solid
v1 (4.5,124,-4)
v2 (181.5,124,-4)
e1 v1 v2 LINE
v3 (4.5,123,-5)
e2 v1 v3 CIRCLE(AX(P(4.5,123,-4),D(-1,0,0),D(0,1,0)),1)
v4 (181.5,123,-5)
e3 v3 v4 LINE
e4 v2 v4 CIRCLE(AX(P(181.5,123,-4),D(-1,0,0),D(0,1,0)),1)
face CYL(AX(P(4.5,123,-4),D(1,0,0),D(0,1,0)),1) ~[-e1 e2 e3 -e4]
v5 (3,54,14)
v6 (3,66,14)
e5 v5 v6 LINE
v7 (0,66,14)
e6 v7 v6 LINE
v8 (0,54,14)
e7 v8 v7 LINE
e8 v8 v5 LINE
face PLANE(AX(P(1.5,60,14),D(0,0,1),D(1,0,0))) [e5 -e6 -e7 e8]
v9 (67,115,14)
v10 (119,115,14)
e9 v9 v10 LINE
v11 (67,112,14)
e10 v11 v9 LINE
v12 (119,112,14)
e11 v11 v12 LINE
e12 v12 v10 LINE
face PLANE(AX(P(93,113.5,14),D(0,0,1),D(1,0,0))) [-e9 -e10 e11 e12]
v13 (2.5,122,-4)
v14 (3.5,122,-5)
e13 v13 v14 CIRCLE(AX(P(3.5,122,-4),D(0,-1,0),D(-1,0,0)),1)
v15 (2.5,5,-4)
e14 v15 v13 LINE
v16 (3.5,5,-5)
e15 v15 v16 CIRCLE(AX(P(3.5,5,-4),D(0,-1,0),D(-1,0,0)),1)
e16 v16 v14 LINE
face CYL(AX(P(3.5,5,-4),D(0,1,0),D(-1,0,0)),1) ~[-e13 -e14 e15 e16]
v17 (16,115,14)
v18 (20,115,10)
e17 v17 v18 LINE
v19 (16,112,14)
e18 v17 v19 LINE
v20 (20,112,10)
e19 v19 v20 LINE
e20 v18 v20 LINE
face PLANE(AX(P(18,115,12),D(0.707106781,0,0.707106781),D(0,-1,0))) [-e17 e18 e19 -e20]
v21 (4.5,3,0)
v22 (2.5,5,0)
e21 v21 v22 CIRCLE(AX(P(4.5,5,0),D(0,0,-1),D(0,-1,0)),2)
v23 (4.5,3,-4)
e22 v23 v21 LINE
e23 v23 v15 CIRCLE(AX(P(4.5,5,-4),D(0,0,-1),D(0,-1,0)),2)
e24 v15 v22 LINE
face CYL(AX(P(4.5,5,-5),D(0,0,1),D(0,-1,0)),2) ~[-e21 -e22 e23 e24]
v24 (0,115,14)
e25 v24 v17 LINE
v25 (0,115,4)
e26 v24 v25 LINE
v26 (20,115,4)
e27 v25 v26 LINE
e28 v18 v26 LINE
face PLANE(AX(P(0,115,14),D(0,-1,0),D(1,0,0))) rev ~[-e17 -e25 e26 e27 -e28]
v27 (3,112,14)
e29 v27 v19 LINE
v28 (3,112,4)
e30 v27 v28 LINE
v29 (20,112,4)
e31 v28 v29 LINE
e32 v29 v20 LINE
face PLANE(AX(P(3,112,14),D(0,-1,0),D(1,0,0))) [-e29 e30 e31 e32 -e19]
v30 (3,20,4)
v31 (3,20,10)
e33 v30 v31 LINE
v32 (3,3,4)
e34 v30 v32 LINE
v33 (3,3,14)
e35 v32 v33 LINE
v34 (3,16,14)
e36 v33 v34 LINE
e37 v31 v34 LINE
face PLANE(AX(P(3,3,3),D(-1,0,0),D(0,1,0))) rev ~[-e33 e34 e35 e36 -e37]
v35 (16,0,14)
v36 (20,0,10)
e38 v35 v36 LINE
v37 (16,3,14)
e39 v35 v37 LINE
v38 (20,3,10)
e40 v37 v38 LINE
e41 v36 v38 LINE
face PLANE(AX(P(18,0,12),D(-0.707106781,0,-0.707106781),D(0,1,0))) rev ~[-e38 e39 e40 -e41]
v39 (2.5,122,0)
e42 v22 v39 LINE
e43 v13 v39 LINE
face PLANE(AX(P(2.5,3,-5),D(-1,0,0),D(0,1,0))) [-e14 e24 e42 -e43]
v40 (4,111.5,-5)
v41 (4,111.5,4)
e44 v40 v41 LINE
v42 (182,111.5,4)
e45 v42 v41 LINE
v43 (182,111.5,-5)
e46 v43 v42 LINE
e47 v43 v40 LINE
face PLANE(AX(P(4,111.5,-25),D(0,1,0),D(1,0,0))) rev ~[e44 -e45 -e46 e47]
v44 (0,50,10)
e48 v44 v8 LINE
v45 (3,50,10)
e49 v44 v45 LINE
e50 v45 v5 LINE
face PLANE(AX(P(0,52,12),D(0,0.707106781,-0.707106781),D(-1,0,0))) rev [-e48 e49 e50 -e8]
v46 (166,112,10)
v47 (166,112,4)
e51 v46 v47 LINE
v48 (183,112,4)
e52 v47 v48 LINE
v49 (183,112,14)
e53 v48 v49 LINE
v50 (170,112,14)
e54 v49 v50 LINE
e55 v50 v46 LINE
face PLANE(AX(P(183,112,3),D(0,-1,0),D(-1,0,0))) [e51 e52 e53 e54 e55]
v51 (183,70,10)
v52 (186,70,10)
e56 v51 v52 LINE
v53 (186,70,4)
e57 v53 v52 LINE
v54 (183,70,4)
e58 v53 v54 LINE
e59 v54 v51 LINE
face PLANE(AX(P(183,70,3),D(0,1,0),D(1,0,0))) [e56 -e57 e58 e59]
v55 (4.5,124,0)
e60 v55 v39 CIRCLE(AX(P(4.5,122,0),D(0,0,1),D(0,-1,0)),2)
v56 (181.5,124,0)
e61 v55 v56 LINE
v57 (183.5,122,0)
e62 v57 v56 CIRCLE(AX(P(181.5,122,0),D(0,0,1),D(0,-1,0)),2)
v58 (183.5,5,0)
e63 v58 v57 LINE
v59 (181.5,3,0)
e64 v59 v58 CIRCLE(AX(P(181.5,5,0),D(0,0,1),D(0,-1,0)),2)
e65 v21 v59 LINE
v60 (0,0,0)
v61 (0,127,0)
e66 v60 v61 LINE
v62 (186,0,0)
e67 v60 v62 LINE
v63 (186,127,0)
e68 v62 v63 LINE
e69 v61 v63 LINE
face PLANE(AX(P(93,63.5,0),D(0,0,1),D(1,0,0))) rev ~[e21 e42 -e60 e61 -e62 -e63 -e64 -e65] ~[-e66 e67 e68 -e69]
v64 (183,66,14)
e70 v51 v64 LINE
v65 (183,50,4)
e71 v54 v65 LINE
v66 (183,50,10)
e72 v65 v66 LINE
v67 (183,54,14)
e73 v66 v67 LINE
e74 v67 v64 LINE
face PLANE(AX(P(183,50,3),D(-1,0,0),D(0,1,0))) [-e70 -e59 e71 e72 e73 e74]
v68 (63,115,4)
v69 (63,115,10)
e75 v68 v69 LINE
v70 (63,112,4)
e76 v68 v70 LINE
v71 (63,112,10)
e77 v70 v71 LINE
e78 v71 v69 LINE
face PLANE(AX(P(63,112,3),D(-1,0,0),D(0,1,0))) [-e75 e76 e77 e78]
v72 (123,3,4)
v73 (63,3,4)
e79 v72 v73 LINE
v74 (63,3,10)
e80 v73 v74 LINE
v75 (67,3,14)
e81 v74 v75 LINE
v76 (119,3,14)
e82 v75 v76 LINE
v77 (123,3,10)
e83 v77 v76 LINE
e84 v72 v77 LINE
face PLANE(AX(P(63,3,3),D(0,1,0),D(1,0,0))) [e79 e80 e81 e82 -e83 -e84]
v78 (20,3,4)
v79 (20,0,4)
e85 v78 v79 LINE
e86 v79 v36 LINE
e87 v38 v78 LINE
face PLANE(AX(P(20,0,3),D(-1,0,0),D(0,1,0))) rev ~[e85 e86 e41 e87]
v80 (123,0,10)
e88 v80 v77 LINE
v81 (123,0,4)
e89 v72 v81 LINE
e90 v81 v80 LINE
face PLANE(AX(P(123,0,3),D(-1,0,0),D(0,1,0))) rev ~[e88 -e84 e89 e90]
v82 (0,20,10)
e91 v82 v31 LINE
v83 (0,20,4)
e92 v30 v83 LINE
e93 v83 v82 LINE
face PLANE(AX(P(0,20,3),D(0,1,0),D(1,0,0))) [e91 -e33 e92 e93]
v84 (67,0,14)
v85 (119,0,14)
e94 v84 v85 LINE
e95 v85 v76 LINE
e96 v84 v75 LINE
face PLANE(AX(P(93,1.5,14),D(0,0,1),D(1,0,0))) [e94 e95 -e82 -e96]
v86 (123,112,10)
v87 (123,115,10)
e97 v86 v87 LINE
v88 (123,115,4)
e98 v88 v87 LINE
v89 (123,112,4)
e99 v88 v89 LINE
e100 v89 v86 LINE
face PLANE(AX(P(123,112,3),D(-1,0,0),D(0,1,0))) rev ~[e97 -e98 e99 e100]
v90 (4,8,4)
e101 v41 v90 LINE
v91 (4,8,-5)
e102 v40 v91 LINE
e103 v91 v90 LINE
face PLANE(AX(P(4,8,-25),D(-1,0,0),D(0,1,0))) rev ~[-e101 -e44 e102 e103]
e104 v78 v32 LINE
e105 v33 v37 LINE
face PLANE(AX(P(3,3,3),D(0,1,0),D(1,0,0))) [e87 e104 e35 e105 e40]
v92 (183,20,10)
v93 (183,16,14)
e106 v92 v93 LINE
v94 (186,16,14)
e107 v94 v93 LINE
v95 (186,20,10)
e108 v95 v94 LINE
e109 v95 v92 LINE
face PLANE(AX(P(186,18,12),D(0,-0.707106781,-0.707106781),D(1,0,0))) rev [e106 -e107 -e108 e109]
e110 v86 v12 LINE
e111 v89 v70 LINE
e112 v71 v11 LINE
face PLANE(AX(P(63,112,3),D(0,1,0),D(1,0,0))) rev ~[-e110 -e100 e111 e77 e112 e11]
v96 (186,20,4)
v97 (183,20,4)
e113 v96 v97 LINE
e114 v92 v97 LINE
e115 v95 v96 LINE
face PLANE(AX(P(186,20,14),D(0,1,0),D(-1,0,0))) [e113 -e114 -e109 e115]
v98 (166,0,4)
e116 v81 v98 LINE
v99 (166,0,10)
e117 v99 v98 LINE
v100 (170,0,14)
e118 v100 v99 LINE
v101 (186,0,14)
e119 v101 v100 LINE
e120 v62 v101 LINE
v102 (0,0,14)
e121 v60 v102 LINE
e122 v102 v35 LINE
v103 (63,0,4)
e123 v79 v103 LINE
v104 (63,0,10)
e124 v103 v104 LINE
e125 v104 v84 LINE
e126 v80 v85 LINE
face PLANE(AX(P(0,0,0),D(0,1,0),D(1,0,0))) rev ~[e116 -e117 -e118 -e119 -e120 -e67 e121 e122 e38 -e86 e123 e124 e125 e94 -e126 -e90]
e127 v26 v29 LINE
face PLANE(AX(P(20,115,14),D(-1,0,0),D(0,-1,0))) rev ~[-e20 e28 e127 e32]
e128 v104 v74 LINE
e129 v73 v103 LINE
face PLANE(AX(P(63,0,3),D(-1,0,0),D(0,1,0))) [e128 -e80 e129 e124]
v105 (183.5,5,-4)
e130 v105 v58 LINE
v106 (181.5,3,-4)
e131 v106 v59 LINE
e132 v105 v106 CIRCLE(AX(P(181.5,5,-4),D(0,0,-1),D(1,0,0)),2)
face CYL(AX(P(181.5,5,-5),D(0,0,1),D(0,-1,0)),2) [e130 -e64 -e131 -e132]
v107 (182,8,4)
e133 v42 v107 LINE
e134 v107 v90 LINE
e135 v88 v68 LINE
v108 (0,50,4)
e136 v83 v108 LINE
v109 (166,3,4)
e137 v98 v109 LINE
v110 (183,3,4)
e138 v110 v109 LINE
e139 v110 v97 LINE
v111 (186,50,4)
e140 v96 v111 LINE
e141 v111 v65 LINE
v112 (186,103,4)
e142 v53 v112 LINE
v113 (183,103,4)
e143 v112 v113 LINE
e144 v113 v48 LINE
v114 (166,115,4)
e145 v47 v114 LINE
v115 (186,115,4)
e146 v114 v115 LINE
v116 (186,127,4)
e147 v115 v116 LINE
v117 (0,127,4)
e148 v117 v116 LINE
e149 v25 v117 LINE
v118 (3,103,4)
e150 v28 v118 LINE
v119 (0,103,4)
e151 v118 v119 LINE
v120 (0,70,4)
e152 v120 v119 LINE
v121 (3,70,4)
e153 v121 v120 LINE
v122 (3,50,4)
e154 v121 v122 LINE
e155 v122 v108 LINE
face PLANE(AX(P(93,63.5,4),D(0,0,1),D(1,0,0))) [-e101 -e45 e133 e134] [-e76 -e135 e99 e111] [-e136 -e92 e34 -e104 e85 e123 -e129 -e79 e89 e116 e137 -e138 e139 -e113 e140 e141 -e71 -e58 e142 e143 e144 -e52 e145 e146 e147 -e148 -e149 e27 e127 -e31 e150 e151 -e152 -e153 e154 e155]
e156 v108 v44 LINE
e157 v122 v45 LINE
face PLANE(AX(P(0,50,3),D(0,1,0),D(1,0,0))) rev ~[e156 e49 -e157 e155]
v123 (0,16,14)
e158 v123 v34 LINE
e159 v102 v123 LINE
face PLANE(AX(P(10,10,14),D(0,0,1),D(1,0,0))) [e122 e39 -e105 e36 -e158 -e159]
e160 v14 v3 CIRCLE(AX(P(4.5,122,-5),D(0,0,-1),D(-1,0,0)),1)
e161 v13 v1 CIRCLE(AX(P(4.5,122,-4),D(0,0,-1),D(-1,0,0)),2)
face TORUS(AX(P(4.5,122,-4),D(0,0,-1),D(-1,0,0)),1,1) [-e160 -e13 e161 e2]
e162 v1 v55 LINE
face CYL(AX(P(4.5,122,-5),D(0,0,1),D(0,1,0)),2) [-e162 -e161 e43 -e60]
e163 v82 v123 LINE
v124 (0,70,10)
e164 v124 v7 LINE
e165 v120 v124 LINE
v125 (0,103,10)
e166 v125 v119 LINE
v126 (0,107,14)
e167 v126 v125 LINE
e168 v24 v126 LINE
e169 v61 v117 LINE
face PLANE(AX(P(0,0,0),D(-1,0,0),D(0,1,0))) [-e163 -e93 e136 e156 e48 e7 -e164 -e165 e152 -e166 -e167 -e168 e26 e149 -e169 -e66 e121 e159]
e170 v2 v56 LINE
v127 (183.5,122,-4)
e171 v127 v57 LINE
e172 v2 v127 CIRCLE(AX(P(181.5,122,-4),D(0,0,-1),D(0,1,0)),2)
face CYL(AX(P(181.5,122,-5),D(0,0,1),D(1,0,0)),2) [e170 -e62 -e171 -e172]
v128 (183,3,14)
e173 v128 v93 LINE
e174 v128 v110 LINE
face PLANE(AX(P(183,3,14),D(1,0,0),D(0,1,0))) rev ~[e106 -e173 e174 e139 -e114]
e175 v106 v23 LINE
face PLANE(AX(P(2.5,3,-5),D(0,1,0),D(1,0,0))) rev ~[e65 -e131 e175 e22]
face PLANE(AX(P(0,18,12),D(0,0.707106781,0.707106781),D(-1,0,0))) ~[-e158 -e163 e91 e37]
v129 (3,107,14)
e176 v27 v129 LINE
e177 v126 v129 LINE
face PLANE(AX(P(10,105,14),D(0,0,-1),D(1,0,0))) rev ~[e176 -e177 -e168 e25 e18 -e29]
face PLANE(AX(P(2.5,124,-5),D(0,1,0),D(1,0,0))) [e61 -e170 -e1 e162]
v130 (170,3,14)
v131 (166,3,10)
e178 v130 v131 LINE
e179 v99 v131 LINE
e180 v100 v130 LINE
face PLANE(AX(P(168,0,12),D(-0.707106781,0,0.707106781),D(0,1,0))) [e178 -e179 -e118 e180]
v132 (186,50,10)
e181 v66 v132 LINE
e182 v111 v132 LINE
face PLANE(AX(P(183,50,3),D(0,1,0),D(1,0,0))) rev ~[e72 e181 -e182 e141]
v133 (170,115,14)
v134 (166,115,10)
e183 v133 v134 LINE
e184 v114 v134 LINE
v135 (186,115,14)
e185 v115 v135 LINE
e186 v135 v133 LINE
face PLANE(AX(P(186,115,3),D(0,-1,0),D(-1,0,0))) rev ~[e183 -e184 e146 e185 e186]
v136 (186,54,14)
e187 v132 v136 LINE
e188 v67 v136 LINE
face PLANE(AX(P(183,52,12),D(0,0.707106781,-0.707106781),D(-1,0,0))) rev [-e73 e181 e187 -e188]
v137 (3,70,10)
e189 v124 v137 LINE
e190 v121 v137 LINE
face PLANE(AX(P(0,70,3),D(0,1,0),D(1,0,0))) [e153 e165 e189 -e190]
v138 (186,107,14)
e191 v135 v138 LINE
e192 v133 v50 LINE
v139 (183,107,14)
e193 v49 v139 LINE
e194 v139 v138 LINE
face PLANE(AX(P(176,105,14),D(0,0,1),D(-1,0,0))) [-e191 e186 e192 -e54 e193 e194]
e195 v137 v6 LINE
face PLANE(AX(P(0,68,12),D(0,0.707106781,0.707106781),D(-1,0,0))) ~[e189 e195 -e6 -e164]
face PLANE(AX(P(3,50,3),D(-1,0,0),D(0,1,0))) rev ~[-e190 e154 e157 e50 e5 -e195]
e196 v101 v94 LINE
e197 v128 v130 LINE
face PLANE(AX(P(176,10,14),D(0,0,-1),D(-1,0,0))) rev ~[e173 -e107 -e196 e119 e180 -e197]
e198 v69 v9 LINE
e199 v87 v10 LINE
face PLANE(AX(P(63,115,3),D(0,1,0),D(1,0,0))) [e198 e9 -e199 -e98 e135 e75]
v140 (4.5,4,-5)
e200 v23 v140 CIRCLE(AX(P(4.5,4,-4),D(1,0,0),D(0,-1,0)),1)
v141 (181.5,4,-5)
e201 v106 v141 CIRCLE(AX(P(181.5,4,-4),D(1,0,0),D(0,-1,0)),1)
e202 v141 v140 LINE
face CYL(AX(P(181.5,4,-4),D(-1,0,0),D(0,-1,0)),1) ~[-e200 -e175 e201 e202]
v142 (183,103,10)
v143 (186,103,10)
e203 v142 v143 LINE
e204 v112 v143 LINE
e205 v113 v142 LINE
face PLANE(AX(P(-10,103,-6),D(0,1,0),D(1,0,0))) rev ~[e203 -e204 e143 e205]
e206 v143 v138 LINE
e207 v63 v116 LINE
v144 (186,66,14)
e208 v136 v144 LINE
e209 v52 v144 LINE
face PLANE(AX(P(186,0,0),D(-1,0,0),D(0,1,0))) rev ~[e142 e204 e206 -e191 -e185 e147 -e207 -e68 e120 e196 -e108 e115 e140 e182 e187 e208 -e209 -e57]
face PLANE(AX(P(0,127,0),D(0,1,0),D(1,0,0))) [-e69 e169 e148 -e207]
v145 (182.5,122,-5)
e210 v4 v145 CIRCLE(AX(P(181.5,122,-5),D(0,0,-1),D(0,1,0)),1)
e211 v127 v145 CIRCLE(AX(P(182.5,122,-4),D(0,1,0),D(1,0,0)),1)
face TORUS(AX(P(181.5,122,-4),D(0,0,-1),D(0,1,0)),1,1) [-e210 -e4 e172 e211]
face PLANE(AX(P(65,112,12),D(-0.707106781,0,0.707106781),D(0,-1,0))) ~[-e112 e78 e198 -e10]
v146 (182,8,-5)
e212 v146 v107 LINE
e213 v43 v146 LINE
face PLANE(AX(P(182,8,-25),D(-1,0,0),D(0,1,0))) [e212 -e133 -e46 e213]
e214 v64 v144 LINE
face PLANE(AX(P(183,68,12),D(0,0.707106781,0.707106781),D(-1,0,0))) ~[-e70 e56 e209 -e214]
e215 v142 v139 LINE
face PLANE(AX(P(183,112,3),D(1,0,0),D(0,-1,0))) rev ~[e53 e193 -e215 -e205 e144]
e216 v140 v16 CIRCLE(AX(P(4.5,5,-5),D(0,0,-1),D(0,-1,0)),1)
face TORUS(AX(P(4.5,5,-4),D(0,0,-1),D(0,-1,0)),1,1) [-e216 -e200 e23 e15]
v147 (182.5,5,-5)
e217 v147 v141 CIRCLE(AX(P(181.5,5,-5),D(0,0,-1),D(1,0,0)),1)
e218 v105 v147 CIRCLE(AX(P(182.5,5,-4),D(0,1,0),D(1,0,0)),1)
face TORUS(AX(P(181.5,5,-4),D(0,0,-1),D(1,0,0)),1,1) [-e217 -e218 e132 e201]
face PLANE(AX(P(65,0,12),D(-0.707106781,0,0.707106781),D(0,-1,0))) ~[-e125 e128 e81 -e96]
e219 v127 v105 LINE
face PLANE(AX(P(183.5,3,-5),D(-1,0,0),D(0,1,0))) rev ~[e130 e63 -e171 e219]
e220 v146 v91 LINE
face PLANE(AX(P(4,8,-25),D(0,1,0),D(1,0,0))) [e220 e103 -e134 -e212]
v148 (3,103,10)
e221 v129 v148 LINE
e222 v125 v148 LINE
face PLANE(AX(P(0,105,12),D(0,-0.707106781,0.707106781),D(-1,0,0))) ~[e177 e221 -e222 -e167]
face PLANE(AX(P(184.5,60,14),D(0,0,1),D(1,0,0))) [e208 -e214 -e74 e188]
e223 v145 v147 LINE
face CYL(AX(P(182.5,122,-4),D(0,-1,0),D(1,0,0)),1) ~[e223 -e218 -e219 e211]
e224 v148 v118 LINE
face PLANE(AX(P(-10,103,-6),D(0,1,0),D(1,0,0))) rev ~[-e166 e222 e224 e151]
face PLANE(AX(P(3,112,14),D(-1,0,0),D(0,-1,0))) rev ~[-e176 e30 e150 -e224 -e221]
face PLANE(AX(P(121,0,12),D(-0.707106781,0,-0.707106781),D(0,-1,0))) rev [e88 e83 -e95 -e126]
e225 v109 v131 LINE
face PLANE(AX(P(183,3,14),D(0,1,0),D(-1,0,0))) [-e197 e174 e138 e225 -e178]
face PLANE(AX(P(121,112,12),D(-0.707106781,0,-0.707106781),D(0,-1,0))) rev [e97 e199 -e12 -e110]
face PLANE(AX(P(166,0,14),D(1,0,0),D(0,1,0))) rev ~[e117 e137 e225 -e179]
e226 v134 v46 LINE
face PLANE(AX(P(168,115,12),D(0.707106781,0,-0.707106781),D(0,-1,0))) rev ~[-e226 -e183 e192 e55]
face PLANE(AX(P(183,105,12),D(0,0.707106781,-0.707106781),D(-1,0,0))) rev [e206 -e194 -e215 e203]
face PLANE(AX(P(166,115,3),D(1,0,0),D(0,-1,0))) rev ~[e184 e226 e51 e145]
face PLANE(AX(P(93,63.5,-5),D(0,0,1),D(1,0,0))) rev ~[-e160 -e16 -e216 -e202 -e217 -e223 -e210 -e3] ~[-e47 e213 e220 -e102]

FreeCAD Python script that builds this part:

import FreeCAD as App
import Part
import Sketcher

V = App.Vector


def edges_at(feature, points):
    """Names of the edges that pass closest to the given points."""
    edges = feature.Shape.Edges
    near = lambda p: min(range(len(edges)), key=lambda i: edges[i].distToShape(Part.Vertex(*p))[0])
    return sorted({f"Edge{near(p) + 1}" for p in points})

doc = App.newDocument("Part")
params = doc.addObject("Spreadsheet::Sheet", "Params")
for row, (alias, value) in enumerate([
    ("sketch1_width", "60 mm"),
    ("sketch1_height", "3 mm"),
    ("pad1_length", "11 mm"),
    ("sketch2_width", "200 mm"),
    ("sketch2_height", "30 mm"),
    ("pad2_length", "20 mm"),
    ("sketch3_width", "60 mm"),
    ("sketch3_height", "3 mm"),
    ("pad3_length", "11 mm"),
    ("sketch4_width", "3 mm"),
    ("sketch4_height", "20 mm"),
    ("pad4_length", "11 mm"),
    ("sketch5_width", "3 mm"),
    ("sketch5_height", "20 mm"),
    ("pad5_length", "11 mm"),
    ("sketch6_width", "30 mm"),
    ("sketch6_height", "20 mm"),
    ("pad6_length", "11 mm"),
    ("sketch7_width", "20 mm"),
    ("pad7_length", "11 mm"),
    ("sketch8_width", "30 mm"),
    ("sketch8_height", "20 mm"),
    ("pad8_length", "11 mm"),
    ("sketch9_width", "20 mm"),
    ("pad9_length", "11 mm"),
    ("sketch10_width", "30 mm"),
    ("sketch10_height", "20 mm"),
    ("pad10_length", "11 mm"),
    ("sketch11_width", "20 mm"),
    ("pad11_length", "11 mm"),
    ("sketch12_width", "30 mm"),
    ("sketch12_height", "20 mm"),
    ("pad12_length", "11 mm"),
    ("sketch13_width", "20 mm"),
    ("pad13_length", "11 mm"),
    ("chamfer_size", "4 mm"),
    ("sketch14_width", "178 mm"),
    ("sketch14_height", "103.5 mm"),
    ("pad14_length", "30 mm"),
    ("sketch15_width", "181 mm"),
    ("sketch15_height", "121 mm"),
    ("pad15_length", "5 mm"),
    ("sketch16_width", "186 mm"),
    ("sketch16_height", "127 mm"),
    ("pad16_length", "4 mm"),
    ("fillet_radius", "2 mm"),
    ("fillet2_radius", "1 mm"),
], start=1):
    params.set(f"A{row}", alias)
    params.set(f"B{row}", "=" + value)
    params.setAlias(f"B{row}", alias)

body = doc.addObject("PartDesign::Body", "Body")

# Sketch on XY plane
sketch1 = body.newObject("Sketcher::SketchObject", "Sketch")
sketch1.AttachmentSupport = (doc.getObject("XY_Plane"), [""])
sketch1.MapMode = "FlatFace"
sketch1.AttachmentOffset = App.Placement(V(0, 0, 4), App.Rotation())
sketch1.addGeometry(Part.LineSegment(V(63, 3, 0), V(63, 0, 0)), False)
sketch1.addGeometry(Part.LineSegment(V(63, 0, 0), V(123, 0, 0)), False)
sketch1.addGeometry(Part.LineSegment(V(123, 0, 0), V(123, 3, 0)), False)
sketch1.addGeometry(Part.LineSegment(V(123, 3, 0), V(63, 3, 0)), False)
sketch1.addConstraint(Sketcher.Constraint("Coincident", 0, 2, 1, 1))
sketch1.addConstraint(Sketcher.Constraint("Coincident", 1, 2, 2, 1))
sketch1.addConstraint(Sketcher.Constraint("Coincident", 2, 2, 3, 1))
sketch1.addConstraint(Sketcher.Constraint("Coincident", 3, 2, 0, 1))
sketch1.addConstraint(Sketcher.Constraint("Vertical", 0))
sketch1.addConstraint(Sketcher.Constraint("Horizontal", 1))
sketch1.addConstraint(Sketcher.Constraint("Vertical", 2))
sketch1.addConstraint(Sketcher.Constraint("Horizontal", 3))
sketch1.addConstraint(Sketcher.Constraint("PointOnObject", 0, 2, -1))
sketch1.addConstraint(Sketcher.Constraint("DistanceX", 1, 1, 1, 2, 60.0))
sketch1.addConstraint(Sketcher.Constraint("DistanceY", 0, 2, 0, 1, 3.0))
sketch1.addConstraint(Sketcher.Constraint("DistanceX", -1, 1, 0, 2, 63.0))
sketch1.setExpression("Constraints[9]", "Params.sketch1_width")
sketch1.setExpression("Constraints[10]", "Params.sketch1_height")
pad1 = body.newObject("PartDesign::Pad", "Pad")
pad1.Profile = sketch1
pad1.setExpression("Length", "Params.pad1_length")
body2 = doc.addObject("PartDesign::Body", "Body001")

# Sketch on XY plane
sketch2 = body2.newObject("Sketcher::SketchObject", "Sketch001")
sketch2.AttachmentSupport = (doc.getObject("XY_Plane001"), [""])
sketch2.MapMode = "FlatFace"
sketch2.AttachmentOffset = App.Placement(V(0, 0, -5), App.Rotation())
sketch2.addGeometry(Part.LineSegment(V(-10, 103, 0), V(-10, 73, 0)), False)
sketch2.addGeometry(Part.LineSegment(V(-10, 73, 0), V(190, 73, 0)), False)
sketch2.addGeometry(Part.LineSegment(V(190, 73, 0), V(190, 103, 0)), False)
sketch2.addGeometry(Part.LineSegment(V(190, 103, 0), V(-10, 103, 0)), False)
sketch2.addConstraint(Sketcher.Constraint("Coincident", 0, 2, 1, 1))
sketch2.addConstraint(Sketcher.Constraint("Coincident", 1, 2, 2, 1))
sketch2.addConstraint(Sketcher.Constraint("Coincident", 2, 2, 3, 1))
sketch2.addConstraint(Sketcher.Constraint("Coincident", 3, 2, 0, 1))
sketch2.addConstraint(Sketcher.Constraint("Vertical", 0))
sketch2.addConstraint(Sketcher.Constraint("Horizontal", 1))
sketch2.addConstraint(Sketcher.Constraint("Vertical", 2))
sketch2.addConstraint(Sketcher.Constraint("Horizontal", 3))
sketch2.addConstraint(Sketcher.Constraint("DistanceX", 1, 1, 1, 2, 200.0))
sketch2.addConstraint(Sketcher.Constraint("DistanceY", 0, 2, 0, 1, 30.0))
sketch2.addConstraint(Sketcher.Constraint("DistanceX", 0, 2, -1, 1, 10.0))
sketch2.addConstraint(Sketcher.Constraint("DistanceY", -1, 1, 0, 2, 73.0))
sketch2.setExpression("Constraints[8]", "Params.sketch2_width")
sketch2.setExpression("Constraints[9]", "Params.sketch2_height")
pad2 = body2.newObject("PartDesign::Pad", "Pad001")
pad2.Profile = sketch2
pad2.setExpression("Length", "Params.pad2_length")
body3 = doc.addObject("PartDesign::Body", "Body002")

# Sketch on XY plane
sketch3 = body3.newObject("Sketcher::SketchObject", "Sketch002")
sketch3.AttachmentSupport = (doc.getObject("XY_Plane002"), [""])
sketch3.MapMode = "FlatFace"
sketch3.AttachmentOffset = App.Placement(V(0, 0, 4), App.Rotation())
sketch3.addGeometry(Part.LineSegment(V(63, 115, 0), V(63, 112, 0)), False)
sketch3.addGeometry(Part.LineSegment(V(63, 112, 0), V(123, 112, 0)), False)
sketch3.addGeometry(Part.LineSegment(V(123, 112, 0), V(123, 115, 0)), False)
sketch3.addGeometry(Part.LineSegment(V(123, 115, 0), V(63, 115, 0)), False)
sketch3.addConstraint(Sketcher.Constraint("Coincident", 0, 2, 1, 1))
sketch3.addConstraint(Sketcher.Constraint("Coincident", 1, 2, 2, 1))
sketch3.addConstraint(Sketcher.Constraint("Coincident", 2, 2, 3, 1))
sketch3.addConstraint(Sketcher.Constraint("Coincident", 3, 2, 0, 1))
sketch3.addConstraint(Sketcher.Constraint("Vertical", 0))
sketch3.addConstraint(Sketcher.Constraint("Horizontal", 1))
sketch3.addConstraint(Sketcher.Constraint("Vertical", 2))
sketch3.addConstraint(Sketcher.Constraint("Horizontal", 3))
sketch3.addConstraint(Sketcher.Constraint("DistanceX", 1, 1, 1, 2, 60.0))
sketch3.addConstraint(Sketcher.Constraint("DistanceY", 0, 2, 0, 1, 3.0))
sketch3.addConstraint(Sketcher.Constraint("DistanceX", -1, 1, 0, 2, 63.0))
sketch3.addConstraint(Sketcher.Constraint("DistanceY", -1, 1, 0, 2, 112.0))
sketch3.setExpression("Constraints[8]", "Params.sketch3_width")
sketch3.setExpression("Constraints[9]", "Params.sketch3_height")
pad3 = body3.newObject("PartDesign::Pad", "Pad002")
pad3.Profile = sketch3
pad3.setExpression("Length", "Params.pad3_length")
body4 = doc.addObject("PartDesign::Body", "Body003")

# Sketch on XY plane
sketch4 = body4.newObject("Sketcher::SketchObject", "Sketch003")
sketch4.AttachmentSupport = (doc.getObject("XY_Plane003"), [""])
sketch4.MapMode = "FlatFace"
sketch4.AttachmentOffset = App.Placement(V(0, 0, 4), App.Rotation())
sketch4.addGeometry(Part.LineSegment(V(0, 70, 0), V(0, 50, 0)), False)
sketch4.addGeometry(Part.LineSegment(V(0, 50, 0), V(3, 50, 0)), False)
sketch4.addGeometry(Part.LineSegment(V(3, 50, 0), V(3, 70, 0)), False)
sketch4.addGeometry(Part.LineSegment(V(3, 70, 0), V(0, 70, 0)), False)
sketch4.addConstraint(Sketcher.Constraint("Coincident", 0, 2, 1, 1))
sketch4.addConstraint(Sketcher.Constraint("Coincident", 1, 2, 2, 1))
sketch4.addConstraint(Sketcher.Constraint("Coincident", 2, 2, 3, 1))
sketch4.addConstraint(Sketcher.Constraint("Coincident", 3, 2, 0, 1))
sketch4.addConstraint(Sketcher.Constraint("Vertical", 0))
sketch4.addConstraint(Sketcher.Constraint("Horizontal", 1))
sketch4.addConstraint(Sketcher.Constraint("Vertical", 2))
sketch4.addConstraint(Sketcher.Constraint("Horizontal", 3))
sketch4.addConstraint(Sketcher.Constraint("PointOnObject", 0, 2, -2))
sketch4.addConstraint(Sketcher.Constraint("DistanceX", 1, 1, 1, 2, 3.0))
sketch4.addConstraint(Sketcher.Constraint("DistanceY", 0, 2, 0, 1, 20.0))
sketch4.addConstraint(Sketcher.Constraint("DistanceY", -1, 1, 0, 2, 50.0))
sketch4.setExpression("Constraints[9]", "Params.sketch4_width")
sketch4.setExpression("Constraints[10]", "Params.sketch4_height")
pad4 = body4.newObject("PartDesign::Pad", "Pad003")
pad4.Profile = sketch4
pad4.setExpression("Length", "Params.pad4_length")
body5 = doc.addObject("PartDesign::Body", "Body004")

# Sketch on XY plane
sketch5 = body5.newObject("Sketcher::SketchObject", "Sketch004")
sketch5.AttachmentSupport = (doc.getObject("XY_Plane004"), [""])
sketch5.MapMode = "FlatFace"
sketch5.AttachmentOffset = App.Placement(V(0, 0, 4), App.Rotation())
sketch5.addGeometry(Part.LineSegment(V(183, 70, 0), V(183, 50, 0)), False)
sketch5.addGeometry(Part.LineSegment(V(183, 50, 0), V(186, 50, 0)), False)
sketch5.addGeometry(Part.LineSegment(V(186, 50, 0), V(186, 70, 0)), False)
sketch5.addGeometry(Part.LineSegment(V(186, 70, 0), V(183, 70, 0)), False)
sketch5.addConstraint(Sketcher.Constraint("Coincident", 0, 2, 1, 1))
sketch5.addConstraint(Sketcher.Constraint("Coincident", 1, 2, 2, 1))
sketch5.addConstraint(Sketcher.Constraint("Coincident", 2, 2, 3, 1))
sketch5.addConstraint(Sketcher.Constraint("Coincident", 3, 2, 0, 1))
sketch5.addConstraint(Sketcher.Constraint("Vertical", 0))
sketch5.addConstraint(Sketcher.Constraint("Horizontal", 1))
sketch5.addConstraint(Sketcher.Constraint("Vertical", 2))
sketch5.addConstraint(Sketcher.Constraint("Horizontal", 3))
sketch5.addConstraint(Sketcher.Constraint("DistanceX", 1, 1, 1, 2, 3.0))
sketch5.addConstraint(Sketcher.Constraint("DistanceY", 0, 2, 0, 1, 20.0))
sketch5.addConstraint(Sketcher.Constraint("DistanceX", -1, 1, 0, 2, 183.0))
sketch5.addConstraint(Sketcher.Constraint("DistanceY", -1, 1, 0, 2, 50.0))
sketch5.setExpression("Constraints[8]", "Params.sketch5_width")
sketch5.setExpression("Constraints[9]", "Params.sketch5_height")
pad5 = body5.newObject("PartDesign::Pad", "Pad004")
pad5.Profile = sketch5
pad5.setExpression("Length", "Params.pad5_length")
body6 = doc.addObject("PartDesign::Body", "Body005")

# Sketch on XY plane
sketch6 = body6.newObject("Sketcher::SketchObject", "Sketch005")
sketch6.AttachmentSupport = (doc.getObject("XY_Plane005"), [""])
sketch6.MapMode = "FlatFace"
sketch6.addGeometry(Part.LineSegment(V(3, 23, 0), V(3, 3, 0)), False)
sketch6.addGeometry(Part.LineSegment(V(3, 3, 0), V(33, 3, 0)), False)
sketch6.addGeometry(Part.LineSegment(V(33, 3, 0), V(33, 23, 0)), False)
sketch6.addGeometry(Part.LineSegment(V(33, 23, 0), V(3, 23, 0)), False)
sketch6.addConstraint(Sketcher.Constraint("Coincident", 0, 2, 1, 1))
sketch6.addConstraint(Sketcher.Constraint("Coincident", 1, 2, 2, 1))
sketch6.addConstraint(Sketcher.Constraint("Coincident", 2, 2, 3, 1))
sketch6.addConstraint(Sketcher.Constraint("Coincident", 3, 2, 0, 1))
sketch6.addConstraint(Sketcher.Constraint("Vertical", 0))
sketch6.addConstraint(Sketcher.Constraint("Horizontal", 1))
sketch6.addConstraint(Sketcher.Constraint("Vertical", 2))
sketch6.addConstraint(Sketcher.Constraint("Horizontal", 3))
sketch6.addConstraint(Sketcher.Constraint("DistanceX", 1, 1, 1, 2, 30.0))
sketch6.addConstraint(Sketcher.Constraint("DistanceY", 0, 2, 0, 1, 20.0))
sketch6.addConstraint(Sketcher.Constraint("DistanceX", -1, 1, 0, 2, 3.0))
sketch6.addConstraint(Sketcher.Constraint("DistanceY", -1, 1, 0, 2, 3.0))
sketch6.setExpression("Constraints[8]", "Params.sketch6_width")
sketch6.setExpression("Constraints[9]", "Params.sketch6_height")
pad6 = body6.newObject("PartDesign::Pad", "Pad005")
pad6.Profile = sketch6
pad6.setExpression("Length", "Params.pad6_length")
body7 = doc.addObject("PartDesign::Body", "Body006")

# Sketch on XY plane
sketch7 = body7.newObject("Sketcher::SketchObject", "Sketch006")
sketch7.AttachmentSupport = (doc.getObject("XY_Plane006"), [""])
sketch7.MapMode = "FlatFace"
sketch7.addGeometry(Part.LineSegment(V(0, 20, 0), V(0, 0, 0)), False)
sketch7.addGeometry(Part.LineSegment(V(0, 0, 0), V(20, 0, 0)), False)
sketch7.addGeometry(Part.LineSegment(V(20, 0, 0), V(20, 20, 0)), False)
sketch7.addGeometry(Part.LineSegment(V(20, 20, 0), V(0, 20, 0)), False)
sketch7.addConstraint(Sketcher.Constraint("Coincident", 0, 2, 1, 1))
sketch7.addConstraint(Sketcher.Constraint("Coincident", 1, 2, 2, 1))
sketch7.addConstraint(Sketcher.Constraint("Coincident", 2, 2, 3, 1))
sketch7.addConstraint(Sketcher.Constraint("Coincident", 3, 2, 0, 1))
sketch7.addConstraint(Sketcher.Constraint("Vertical", 0))
sketch7.addConstraint(Sketcher.Constraint("Horizontal", 1))
sketch7.addConstraint(Sketcher.Constraint("Vertical", 2))
sketch7.addConstraint(Sketcher.Constraint("Horizontal", 3))
sketch7.addConstraint(Sketcher.Constraint("Coincident", 0, 2, -1, 1))
sketch7.addConstraint(Sketcher.Constraint("Equal", 3, 0))
sketch7.addConstraint(Sketcher.Constraint("DistanceX", 1, 1, 1, 2, 20.0))
sketch7.setExpression("Constraints[10]", "Params.sketch7_width")
pad7 = body7.newObject("PartDesign::Pad", "Pad006")
pad7.Profile = sketch7
pad7.setExpression("Length", "Params.pad7_length")
doc.recompute()

boolean = body7.newObject("PartDesign::Boolean", "Boolean")
boolean.Type = "Cut"
boolean.addObjects([body6])
body8 = doc.addObject("PartDesign::Body", "Body007")
doc.recompute()

body7.Placement = App.Placement(V(186, 0, 15), App.Rotation(V(0, 1, 0), 180))
boolean2 = body8.newObject("PartDesign::Boolean", "Boolean001")
boolean2.Type = "Fuse"
boolean2.addObjects([body7])
body9 = doc.addObject("PartDesign::Body", "Body008")

# Sketch on XY plane
sketch8 = body9.newObject("Sketcher::SketchObject", "Sketch007")
sketch8.AttachmentSupport = (doc.getObject("XY_Plane008"), [""])
sketch8.MapMode = "FlatFace"
sketch8.addGeometry(Part.LineSegment(V(3, 23, 0), V(3, 3, 0)), False)
sketch8.addGeometry(Part.LineSegment(V(3, 3, 0), V(33, 3, 0)), False)
sketch8.addGeometry(Part.LineSegment(V(33, 3, 0), V(33, 23, 0)), False)
sketch8.addGeometry(Part.LineSegment(V(33, 23, 0), V(3, 23, 0)), False)
sketch8.addConstraint(Sketcher.Constraint("Coincident", 0, 2, 1, 1))
sketch8.addConstraint(Sketcher.Constraint("Coincident", 1, 2, 2, 1))
sketch8.addConstraint(Sketcher.Constraint("Coincident", 2, 2, 3, 1))
sketch8.addConstraint(Sketcher.Constraint("Coincident", 3, 2, 0, 1))
sketch8.addConstraint(Sketcher.Constraint("Vertical", 0))
sketch8.addConstraint(Sketcher.Constraint("Horizontal", 1))
sketch8.addConstraint(Sketcher.Constraint("Vertical", 2))
sketch8.addConstraint(Sketcher.Constraint("Horizontal", 3))
sketch8.addConstraint(Sketcher.Constraint("DistanceX", 1, 1, 1, 2, 30.0))
sketch8.addConstraint(Sketcher.Constraint("DistanceY", 0, 2, 0, 1, 20.0))
sketch8.addConstraint(Sketcher.Constraint("DistanceX", -1, 1, 0, 2, 3.0))
sketch8.addConstraint(Sketcher.Constraint("DistanceY", -1, 1, 0, 2, 3.0))
sketch8.setExpression("Constraints[8]", "Params.sketch8_width")
sketch8.setExpression("Constraints[9]", "Params.sketch8_height")
pad8 = body9.newObject("PartDesign::Pad", "Pad007")
pad8.Profile = sketch8
pad8.setExpression("Length", "Params.pad8_length")
body10 = doc.addObject("PartDesign::Body", "Body009")

# Sketch on XY plane
sketch9 = body10.newObject("Sketcher::SketchObject", "Sketch008")
sketch9.AttachmentSupport = (doc.getObject("XY_Plane009"), [""])
sketch9.MapMode = "FlatFace"
sketch9.addGeometry(Part.LineSegment(V(0, 20, 0), V(0, 0, 0)), False)
sketch9.addGeometry(Part.LineSegment(V(0, 0, 0), V(20, 0, 0)), False)
sketch9.addGeometry(Part.LineSegment(V(20, 0, 0), V(20, 20, 0)), False)
sketch9.addGeometry(Part.LineSegment(V(20, 20, 0), V(0, 20, 0)), False)
sketch9.addConstraint(Sketcher.Constraint("Coincident", 0, 2, 1, 1))
sketch9.addConstraint(Sketcher.Constraint("Coincident", 1, 2, 2, 1))
sketch9.addConstraint(Sketcher.Constraint("Coincident", 2, 2, 3, 1))
sketch9.addConstraint(Sketcher.Constraint("Coincident", 3, 2, 0, 1))
sketch9.addConstraint(Sketcher.Constraint("Vertical", 0))
sketch9.addConstraint(Sketcher.Constraint("Horizontal", 1))
sketch9.addConstraint(Sketcher.Constraint("Vertical", 2))
sketch9.addConstraint(Sketcher.Constraint("Horizontal", 3))
sketch9.addConstraint(Sketcher.Constraint("Coincident", 0, 2, -1, 1))
sketch9.addConstraint(Sketcher.Constraint("Equal", 3, 0))
sketch9.addConstraint(Sketcher.Constraint("DistanceX", 1, 1, 1, 2, 20.0))
sketch9.setExpression("Constraints[10]", "Params.sketch9_width")
pad9 = body10.newObject("PartDesign::Pad", "Pad008")
pad9.Profile = sketch9
pad9.setExpression("Length", "Params.pad9_length")
doc.recompute()

boolean3 = body10.newObject("PartDesign::Boolean", "Boolean002")
boolean3.Type = "Cut"
boolean3.addObjects([body9])
body11 = doc.addObject("PartDesign::Body", "Body010")
doc.recompute()

body10.Placement = App.Placement(V(186, 115, 4), App.Rotation(V(0, 0, 1), 180))
boolean4 = body11.newObject("PartDesign::Boolean", "Boolean003")
boolean4.Type = "Fuse"
boolean4.addObjects([body10])
body12 = doc.addObject("PartDesign::Body", "Body011")

# Sketch on XY plane
sketch10 = body12.newObject("Sketcher::SketchObject", "Sketch009")
sketch10.AttachmentSupport = (doc.getObject("XY_Plane011"), [""])
sketch10.MapMode = "FlatFace"
sketch10.addGeometry(Part.LineSegment(V(3, 23, 0), V(3, 3, 0)), False)
sketch10.addGeometry(Part.LineSegment(V(3, 3, 0), V(33, 3, 0)), False)
sketch10.addGeometry(Part.LineSegment(V(33, 3, 0), V(33, 23, 0)), False)
sketch10.addGeometry(Part.LineSegment(V(33, 23, 0), V(3, 23, 0)), False)
sketch10.addConstraint(Sketcher.Constraint("Coincident", 0, 2, 1, 1))
sketch10.addConstraint(Sketcher.Constraint("Coincident", 1, 2, 2, 1))
sketch10.addConstraint(Sketcher.Constraint("Coincident", 2, 2, 3, 1))
sketch10.addConstraint(Sketcher.Constraint("Coincident", 3, 2, 0, 1))
sketch10.addConstraint(Sketcher.Constraint("Vertical", 0))
sketch10.addConstraint(Sketcher.Constraint("Horizontal", 1))
sketch10.addConstraint(Sketcher.Constraint("Vertical", 2))
sketch10.addConstraint(Sketcher.Constraint("Horizontal", 3))
sketch10.addConstraint(Sketcher.Constraint("DistanceX", 1, 1, 1, 2, 30.0))
sketch10.addConstraint(Sketcher.Constraint("DistanceY", 0, 2, 0, 1, 20.0))
sketch10.addConstraint(Sketcher.Constraint("DistanceX", -1, 1, 0, 2, 3.0))
sketch10.addConstraint(Sketcher.Constraint("DistanceY", -1, 1, 0, 2, 3.0))
sketch10.setExpression("Constraints[8]", "Params.sketch10_width")
sketch10.setExpression("Constraints[9]", "Params.sketch10_height")
pad10 = body12.newObject("PartDesign::Pad", "Pad009")
pad10.Profile = sketch10
pad10.setExpression("Length", "Params.pad10_length")
body13 = doc.addObject("PartDesign::Body", "Body012")

# Sketch on XY plane
sketch11 = body13.newObject("Sketcher::SketchObject", "Sketch010")
sketch11.AttachmentSupport = (doc.getObject("XY_Plane012"), [""])
sketch11.MapMode = "FlatFace"
sketch11.addGeometry(Part.LineSegment(V(0, 20, 0), V(0, 0, 0)), False)
sketch11.addGeometry(Part.LineSegment(V(0, 0, 0), V(20, 0, 0)), False)
sketch11.addGeometry(Part.LineSegment(V(20, 0, 0), V(20, 20, 0)), False)
sketch11.addGeometry(Part.LineSegment(V(20, 20, 0), V(0, 20, 0)), False)
sketch11.addConstraint(Sketcher.Constraint("Coincident", 0, 2, 1, 1))
sketch11.addConstraint(Sketcher.Constraint("Coincident", 1, 2, 2, 1))
sketch11.addConstraint(Sketcher.Constraint("Coincident", 2, 2, 3, 1))
sketch11.addConstraint(Sketcher.Constraint("Coincident", 3, 2, 0, 1))
sketch11.addConstraint(Sketcher.Constraint("Vertical", 0))
sketch11.addConstraint(Sketcher.Constraint("Horizontal", 1))
sketch11.addConstraint(Sketcher.Constraint("Vertical", 2))
sketch11.addConstraint(Sketcher.Constraint("Horizontal", 3))
sketch11.addConstraint(Sketcher.Constraint("Coincident", 0, 2, -1, 1))
sketch11.addConstraint(Sketcher.Constraint("Equal", 3, 0))
sketch11.addConstraint(Sketcher.Constraint("DistanceX", 1, 1, 1, 2, 20.0))
sketch11.setExpression("Constraints[10]", "Params.sketch11_width")
pad11 = body13.newObject("PartDesign::Pad", "Pad010")
pad11.Profile = sketch11
pad11.setExpression("Length", "Params.pad11_length")
doc.recompute()

boolean5 = body13.newObject("PartDesign::Boolean", "Boolean004")
boolean5.Type = "Cut"
boolean5.addObjects([body12])
body14 = doc.addObject("PartDesign::Body", "Body013")
doc.recompute()

body13.Placement = App.Placement(V(0, 115, 15), App.Rotation(V(1, 0, 0), 180))
boolean6 = body14.newObject("PartDesign::Boolean", "Boolean005")
boolean6.Type = "Fuse"
boolean6.addObjects([body13])
body15 = doc.addObject("PartDesign::Body", "Body014")

# Sketch on XY plane
sketch12 = body15.newObject("Sketcher::SketchObject", "Sketch011")
sketch12.AttachmentSupport = (doc.getObject("XY_Plane014"), [""])
sketch12.MapMode = "FlatFace"
sketch12.addGeometry(Part.LineSegment(V(3, 23, 0), V(3, 3, 0)), False)
sketch12.addGeometry(Part.LineSegment(V(3, 3, 0), V(33, 3, 0)), False)
sketch12.addGeometry(Part.LineSegment(V(33, 3, 0), V(33, 23, 0)), False)
sketch12.addGeometry(Part.LineSegment(V(33, 23, 0), V(3, 23, 0)), False)
sketch12.addConstraint(Sketcher.Constraint("Coincident", 0, 2, 1, 1))
sketch12.addConstraint(Sketcher.Constraint("Coincident", 1, 2, 2, 1))
sketch12.addConstraint(Sketcher.Constraint("Coincident", 2, 2, 3, 1))
sketch12.addConstraint(Sketcher.Constraint("Coincident", 3, 2, 0, 1))
sketch12.addConstraint(Sketcher.Constraint("Vertical", 0))
sketch12.addConstraint(Sketcher.Constraint("Horizontal", 1))
sketch12.addConstraint(Sketcher.Constraint("Vertical", 2))
sketch12.addConstraint(Sketcher.Constraint("Horizontal", 3))
sketch12.addConstraint(Sketcher.Constraint("DistanceX", 1, 1, 1, 2, 30.0))
sketch12.addConstraint(Sketcher.Constraint("DistanceY", 0, 2, 0, 1, 20.0))
sketch12.addConstraint(Sketcher.Constraint("DistanceX", -1, 1, 0, 2, 3.0))
sketch12.addConstraint(Sketcher.Constraint("DistanceY", -1, 1, 0, 2, 3.0))
sketch12.setExpression("Constraints[8]", "Params.sketch12_width")
sketch12.setExpression("Constraints[9]", "Params.sketch12_height")
pad12 = body15.newObject("PartDesign::Pad", "Pad011")
pad12.Profile = sketch12
pad12.setExpression("Length", "Params.pad12_length")
body16 = doc.addObject("PartDesign::Body", "Body015")

# Sketch on XY plane
sketch13 = body16.newObject("Sketcher::SketchObject", "Sketch012")
sketch13.AttachmentSupport = (doc.getObject("XY_Plane015"), [""])
sketch13.MapMode = "FlatFace"
sketch13.addGeometry(Part.LineSegment(V(0, 20, 0), V(0, 0, 0)), False)
sketch13.addGeometry(Part.LineSegment(V(0, 0, 0), V(20, 0, 0)), False)
sketch13.addGeometry(Part.LineSegment(V(20, 0, 0), V(20, 20, 0)), False)
sketch13.addGeometry(Part.LineSegment(V(20, 20, 0), V(0, 20, 0)), False)
sketch13.addConstraint(Sketcher.Constraint("Coincident", 0, 2, 1, 1))
sketch13.addConstraint(Sketcher.Constraint("Coincident", 1, 2, 2, 1))
sketch13.addConstraint(Sketcher.Constraint("Coincident", 2, 2, 3, 1))
sketch13.addConstraint(Sketcher.Constraint("Coincident", 3, 2, 0, 1))
sketch13.addConstraint(Sketcher.Constraint("Vertical", 0))
sketch13.addConstraint(Sketcher.Constraint("Horizontal", 1))
sketch13.addConstraint(Sketcher.Constraint("Vertical", 2))
sketch13.addConstraint(Sketcher.Constraint("Horizontal", 3))
sketch13.addConstraint(Sketcher.Constraint("Coincident", 0, 2, -1, 1))
sketch13.addConstraint(Sketcher.Constraint("Equal", 3, 0))
sketch13.addConstraint(Sketcher.Constraint("DistanceX", 1, 1, 1, 2, 20.0))
sketch13.setExpression("Constraints[10]", "Params.sketch13_width")
pad13 = body16.newObject("PartDesign::Pad", "Pad012")
pad13.Profile = sketch13
pad13.setExpression("Length", "Params.pad13_length")
doc.recompute()

boolean7 = body16.newObject("PartDesign::Boolean", "Boolean006")
boolean7.Type = "Cut"
boolean7.addObjects([body15])
body17 = doc.addObject("PartDesign::Body", "Body016")
body17.AllowCompound = True
doc.recompute()

body16.Placement = App.Placement(V(0, 0, 4), App.Rotation(V(0, 0, 1), 0))
boolean8 = body17.newObject("PartDesign::Boolean", "Boolean007")
boolean8.Type = "Fuse"
boolean8.addObjects([body16])
doc.recompute()

boolean9 = body17.newObject("PartDesign::Boolean", "Boolean008")
boolean9.Type = "Fuse"
boolean9.addObjects([body4])
doc.recompute()

boolean10 = body17.newObject("PartDesign::Boolean", "Boolean009")
boolean10.Type = "Fuse"
boolean10.addObjects([body5])
doc.recompute()

boolean11 = body17.newObject("PartDesign::Boolean", "Boolean010")
boolean11.Type = "Fuse"
boolean11.addObjects([body8])
doc.recompute()

boolean12 = body17.newObject("PartDesign::Boolean", "Boolean011")
boolean12.Type = "Fuse"
boolean12.addObjects([body11])
doc.recompute()

boolean13 = body17.newObject("PartDesign::Boolean", "Boolean012")
boolean13.Type = "Fuse"
boolean13.addObjects([body14])
doc.recompute()

boolean14 = body17.newObject("PartDesign::Boolean", "Boolean013")
boolean14.Type = "Fuse"
boolean14.addObjects([body3])
doc.recompute()

boolean15 = body17.newObject("PartDesign::Boolean", "Boolean014")
boolean15.Type = "Cut"
boolean15.addObjects([body2])
doc.recompute()

boolean16 = body17.newObject("PartDesign::Boolean", "Boolean015")
boolean16.Type = "Fuse"
boolean16.addObjects([body])
doc.recompute()

chamfer = body17.newObject("PartDesign::Chamfer", "Chamfer")
chamfer.Base = (boolean16, edges_at(boolean16, [
    (184.5, 20, 15),
    (166, 1.5, 15),
    (63, 113.5, 15),
    (123, 113.5, 15),
    (1.5, 103, 15),
    (20, 113.5, 15),
    (184.5, 50, 15),
    (184.5, 70, 15),
    (184.5, 103, 15),
    (166, 113.5, 15),
    (63, 1.5, 15),
    (123, 1.5, 15),
    (1.5, 50, 15),
    (1.5, 70, 15),
    (1.5, 20, 15),
    (20, 1.5, 15),
]))
chamfer.setExpression("Size", "Params.chamfer_size")
body18 = doc.addObject("PartDesign::Body", "Body017")
body18.AllowCompound = True
doc.recompute()

body17.Placement = App.Placement(V(0, 0, -1), App.Rotation(V(0, 0, 1), 0))
boolean17 = body18.newObject("PartDesign::Boolean", "Boolean016")
boolean17.Type = "Fuse"
boolean17.addObjects([body17])
body19 = doc.addObject("PartDesign::Body", "Body018")

# Sketch on XY plane
sketch14 = body19.newObject("Sketcher::SketchObject", "Sketch013")
sketch14.AttachmentSupport = (doc.getObject("XY_Plane018"), [""])
sketch14.MapMode = "FlatFace"
sketch14.AttachmentOffset = App.Placement(V(0, 0, -25), App.Rotation())
sketch14.addGeometry(Part.LineSegment(V(4, 111.5, 0), V(4, 8, 0)), False)
sketch14.addGeometry(Part.LineSegment(V(4, 8, 0), V(182, 8, 0)), False)
sketch14.addGeometry(Part.LineSegment(V(182, 8, 0), V(182, 111.5, 0)), False)
sketch14.addGeometry(Part.LineSegment(V(182, 111.5, 0), V(4, 111.5, 0)), False)
sketch14.addConstraint(Sketcher.Constraint("Coincident", 0, 2, 1, 1))
sketch14.addConstraint(Sketcher.Constraint("Coincident", 1, 2, 2, 1))
sketch14.addConstraint(Sketcher.Constraint("Coincident", 2, 2, 3, 1))
sketch14.addConstraint(Sketcher.Constraint("Coincident", 3, 2, 0, 1))
sketch14.addConstraint(Sketcher.Constraint("Vertical", 0))
sketch14.addConstraint(Sketcher.Constraint("Horizontal", 1))
sketch14.addConstraint(Sketcher.Constraint("Vertical", 2))
sketch14.addConstraint(Sketcher.Constraint("Horizontal", 3))
sketch14.addConstraint(Sketcher.Constraint("DistanceX", 1, 1, 1, 2, 178.0))
sketch14.addConstraint(Sketcher.Constraint("DistanceY", 0, 2, 0, 1, 103.5))
sketch14.addConstraint(Sketcher.Constraint("DistanceX", -1, 1, 0, 2, 4.0))
sketch14.addConstraint(Sketcher.Constraint("DistanceY", -1, 1, 0, 2, 8.0))
sketch14.setExpression("Constraints[8]", "Params.sketch14_width")
sketch14.setExpression("Constraints[9]", "Params.sketch14_height")
pad14 = body19.newObject("PartDesign::Pad", "Pad013")
pad14.Profile = sketch14
pad14.setExpression("Length", "Params.pad14_length")
body20 = doc.addObject("PartDesign::Body", "Body019")

# Sketch on XY plane
sketch15 = body20.newObject("Sketcher::SketchObject", "Sketch014")
sketch15.AttachmentSupport = (doc.getObject("XY_Plane019"), [""])
sketch15.MapMode = "FlatFace"
sketch15.AttachmentOffset = App.Placement(V(0, 0, -5), App.Rotation())
sketch15.addGeometry(Part.LineSegment(V(2.5, 124, 0), V(2.5, 3, 0)), False)
sketch15.addGeometry(Part.LineSegment(V(2.5, 3, 0), V(183.5, 3, 0)), False)
sketch15.addGeometry(Part.LineSegment(V(183.5, 3, 0), V(183.5, 124, 0)), False)
sketch15.addGeometry(Part.LineSegment(V(183.5, 124, 0), V(2.5, 124, 0)), False)
sketch15.addConstraint(Sketcher.Constraint("Coincident", 0, 2, 1, 1))
sketch15.addConstraint(Sketcher.Constraint("Coincident", 1, 2, 2, 1))
sketch15.addConstraint(Sketcher.Constraint("Coincident", 2, 2, 3, 1))
sketch15.addConstraint(Sketcher.Constraint("Coincident", 3, 2, 0, 1))
sketch15.addConstraint(Sketcher.Constraint("Vertical", 0))
sketch15.addConstraint(Sketcher.Constraint("Horizontal", 1))
sketch15.addConstraint(Sketcher.Constraint("Vertical", 2))
sketch15.addConstraint(Sketcher.Constraint("Horizontal", 3))
sketch15.addConstraint(Sketcher.Constraint("DistanceX", 1, 1, 1, 2, 181.0))
sketch15.addConstraint(Sketcher.Constraint("DistanceY", 0, 2, 0, 1, 121.0))
sketch15.addConstraint(Sketcher.Constraint("DistanceY", -1, 1, 0, 2, 3.0))
sketch15.addConstraint(Sketcher.Constraint("DistanceX", -1, 1, 0, 2, 2.5))
sketch15.setExpression("Constraints[8]", "Params.sketch15_width")
sketch15.setExpression("Constraints[9]", "Params.sketch15_height")
pad15 = body20.newObject("PartDesign::Pad", "Pad014")
pad15.Profile = sketch15
pad15.setExpression("Length", "Params.pad15_length")
body21 = doc.addObject("PartDesign::Body", "Body020")

# Sketch on XY plane
sketch16 = body21.newObject("Sketcher::SketchObject", "Sketch015")
sketch16.AttachmentSupport = (doc.getObject("XY_Plane020"), [""])
sketch16.MapMode = "FlatFace"
sketch16.addGeometry(Part.LineSegment(V(0, 127, 0), V(0, 0, 0)), False)
sketch16.addGeometry(Part.LineSegment(V(0, 0, 0), V(186, 0, 0)), False)
sketch16.addGeometry(Part.LineSegment(V(186, 0, 0), V(186, 127, 0)), False)
sketch16.addGeometry(Part.LineSegment(V(186, 127, 0), V(0, 127, 0)), False)
sketch16.addConstraint(Sketcher.Constraint("Coincident", 0, 2, 1, 1))
sketch16.addConstraint(Sketcher.Constraint("Coincident", 1, 2, 2, 1))
sketch16.addConstraint(Sketcher.Constraint("Coincident", 2, 2, 3, 1))
sketch16.addConstraint(Sketcher.Constraint("Coincident", 3, 2, 0, 1))
sketch16.addConstraint(Sketcher.Constraint("Vertical", 0))
sketch16.addConstraint(Sketcher.Constraint("Horizontal", 1))
sketch16.addConstraint(Sketcher.Constraint("Vertical", 2))
sketch16.addConstraint(Sketcher.Constraint("Horizontal", 3))
sketch16.addConstraint(Sketcher.Constraint("Coincident", 0, 2, -1, 1))
sketch16.addConstraint(Sketcher.Constraint("DistanceX", 1, 1, 1, 2, 186.0))
sketch16.addConstraint(Sketcher.Constraint("DistanceY", 0, 2, 0, 1, 127.0))
sketch16.setExpression("Constraints[9]", "Params.sketch16_width")
sketch16.setExpression("Constraints[10]", "Params.sketch16_height")
pad16 = body21.newObject("PartDesign::Pad", "Pad015")
pad16.Profile = sketch16
pad16.setExpression("Length", "Params.pad16_length")
doc.recompute()

boolean18 = body21.newObject("PartDesign::Boolean", "Boolean017")
boolean18.Type = "Fuse"
boolean18.addObjects([body20])
doc.recompute()

boolean19 = body21.newObject("PartDesign::Boolean", "Boolean018")
boolean19.Type = "Cut"
boolean19.addObjects([body19])
doc.recompute()

fillet = body21.newObject("PartDesign::Fillet", "Fillet")
fillet.Base = (boolean19, edges_at(boolean19, [
    (183.5, 124, -2.5),
    (2.5, 124, -2.5),
    (2.5, 3, -2.5),
    (183.5, 3, -2.5),
]))
fillet.setExpression("Radius", "Params.fillet_radius")
doc.recompute()

fillet2 = body21.newObject("PartDesign::Fillet", "Fillet001")
fillet2.Base = (fillet, edges_at(fillet, [
    (93, 124, -5),
    (3.086, 123.414, -5),
    (182.914, 123.414, -5),
    (2.5, 63.5, -5),
    (183.5, 63.5, -5),
    (3.086, 3.586, -5),
    (182.914, 3.586, -5),
    (93, 3, -5),
]))
fillet2.setExpression("Radius", "Params.fillet2_radius")
doc.recompute()

boolean20 = body21.newObject("PartDesign::Boolean", "Boolean019")
boolean20.Type = "Fuse"
boolean20.addObjects([body18])

doc.recompute()
